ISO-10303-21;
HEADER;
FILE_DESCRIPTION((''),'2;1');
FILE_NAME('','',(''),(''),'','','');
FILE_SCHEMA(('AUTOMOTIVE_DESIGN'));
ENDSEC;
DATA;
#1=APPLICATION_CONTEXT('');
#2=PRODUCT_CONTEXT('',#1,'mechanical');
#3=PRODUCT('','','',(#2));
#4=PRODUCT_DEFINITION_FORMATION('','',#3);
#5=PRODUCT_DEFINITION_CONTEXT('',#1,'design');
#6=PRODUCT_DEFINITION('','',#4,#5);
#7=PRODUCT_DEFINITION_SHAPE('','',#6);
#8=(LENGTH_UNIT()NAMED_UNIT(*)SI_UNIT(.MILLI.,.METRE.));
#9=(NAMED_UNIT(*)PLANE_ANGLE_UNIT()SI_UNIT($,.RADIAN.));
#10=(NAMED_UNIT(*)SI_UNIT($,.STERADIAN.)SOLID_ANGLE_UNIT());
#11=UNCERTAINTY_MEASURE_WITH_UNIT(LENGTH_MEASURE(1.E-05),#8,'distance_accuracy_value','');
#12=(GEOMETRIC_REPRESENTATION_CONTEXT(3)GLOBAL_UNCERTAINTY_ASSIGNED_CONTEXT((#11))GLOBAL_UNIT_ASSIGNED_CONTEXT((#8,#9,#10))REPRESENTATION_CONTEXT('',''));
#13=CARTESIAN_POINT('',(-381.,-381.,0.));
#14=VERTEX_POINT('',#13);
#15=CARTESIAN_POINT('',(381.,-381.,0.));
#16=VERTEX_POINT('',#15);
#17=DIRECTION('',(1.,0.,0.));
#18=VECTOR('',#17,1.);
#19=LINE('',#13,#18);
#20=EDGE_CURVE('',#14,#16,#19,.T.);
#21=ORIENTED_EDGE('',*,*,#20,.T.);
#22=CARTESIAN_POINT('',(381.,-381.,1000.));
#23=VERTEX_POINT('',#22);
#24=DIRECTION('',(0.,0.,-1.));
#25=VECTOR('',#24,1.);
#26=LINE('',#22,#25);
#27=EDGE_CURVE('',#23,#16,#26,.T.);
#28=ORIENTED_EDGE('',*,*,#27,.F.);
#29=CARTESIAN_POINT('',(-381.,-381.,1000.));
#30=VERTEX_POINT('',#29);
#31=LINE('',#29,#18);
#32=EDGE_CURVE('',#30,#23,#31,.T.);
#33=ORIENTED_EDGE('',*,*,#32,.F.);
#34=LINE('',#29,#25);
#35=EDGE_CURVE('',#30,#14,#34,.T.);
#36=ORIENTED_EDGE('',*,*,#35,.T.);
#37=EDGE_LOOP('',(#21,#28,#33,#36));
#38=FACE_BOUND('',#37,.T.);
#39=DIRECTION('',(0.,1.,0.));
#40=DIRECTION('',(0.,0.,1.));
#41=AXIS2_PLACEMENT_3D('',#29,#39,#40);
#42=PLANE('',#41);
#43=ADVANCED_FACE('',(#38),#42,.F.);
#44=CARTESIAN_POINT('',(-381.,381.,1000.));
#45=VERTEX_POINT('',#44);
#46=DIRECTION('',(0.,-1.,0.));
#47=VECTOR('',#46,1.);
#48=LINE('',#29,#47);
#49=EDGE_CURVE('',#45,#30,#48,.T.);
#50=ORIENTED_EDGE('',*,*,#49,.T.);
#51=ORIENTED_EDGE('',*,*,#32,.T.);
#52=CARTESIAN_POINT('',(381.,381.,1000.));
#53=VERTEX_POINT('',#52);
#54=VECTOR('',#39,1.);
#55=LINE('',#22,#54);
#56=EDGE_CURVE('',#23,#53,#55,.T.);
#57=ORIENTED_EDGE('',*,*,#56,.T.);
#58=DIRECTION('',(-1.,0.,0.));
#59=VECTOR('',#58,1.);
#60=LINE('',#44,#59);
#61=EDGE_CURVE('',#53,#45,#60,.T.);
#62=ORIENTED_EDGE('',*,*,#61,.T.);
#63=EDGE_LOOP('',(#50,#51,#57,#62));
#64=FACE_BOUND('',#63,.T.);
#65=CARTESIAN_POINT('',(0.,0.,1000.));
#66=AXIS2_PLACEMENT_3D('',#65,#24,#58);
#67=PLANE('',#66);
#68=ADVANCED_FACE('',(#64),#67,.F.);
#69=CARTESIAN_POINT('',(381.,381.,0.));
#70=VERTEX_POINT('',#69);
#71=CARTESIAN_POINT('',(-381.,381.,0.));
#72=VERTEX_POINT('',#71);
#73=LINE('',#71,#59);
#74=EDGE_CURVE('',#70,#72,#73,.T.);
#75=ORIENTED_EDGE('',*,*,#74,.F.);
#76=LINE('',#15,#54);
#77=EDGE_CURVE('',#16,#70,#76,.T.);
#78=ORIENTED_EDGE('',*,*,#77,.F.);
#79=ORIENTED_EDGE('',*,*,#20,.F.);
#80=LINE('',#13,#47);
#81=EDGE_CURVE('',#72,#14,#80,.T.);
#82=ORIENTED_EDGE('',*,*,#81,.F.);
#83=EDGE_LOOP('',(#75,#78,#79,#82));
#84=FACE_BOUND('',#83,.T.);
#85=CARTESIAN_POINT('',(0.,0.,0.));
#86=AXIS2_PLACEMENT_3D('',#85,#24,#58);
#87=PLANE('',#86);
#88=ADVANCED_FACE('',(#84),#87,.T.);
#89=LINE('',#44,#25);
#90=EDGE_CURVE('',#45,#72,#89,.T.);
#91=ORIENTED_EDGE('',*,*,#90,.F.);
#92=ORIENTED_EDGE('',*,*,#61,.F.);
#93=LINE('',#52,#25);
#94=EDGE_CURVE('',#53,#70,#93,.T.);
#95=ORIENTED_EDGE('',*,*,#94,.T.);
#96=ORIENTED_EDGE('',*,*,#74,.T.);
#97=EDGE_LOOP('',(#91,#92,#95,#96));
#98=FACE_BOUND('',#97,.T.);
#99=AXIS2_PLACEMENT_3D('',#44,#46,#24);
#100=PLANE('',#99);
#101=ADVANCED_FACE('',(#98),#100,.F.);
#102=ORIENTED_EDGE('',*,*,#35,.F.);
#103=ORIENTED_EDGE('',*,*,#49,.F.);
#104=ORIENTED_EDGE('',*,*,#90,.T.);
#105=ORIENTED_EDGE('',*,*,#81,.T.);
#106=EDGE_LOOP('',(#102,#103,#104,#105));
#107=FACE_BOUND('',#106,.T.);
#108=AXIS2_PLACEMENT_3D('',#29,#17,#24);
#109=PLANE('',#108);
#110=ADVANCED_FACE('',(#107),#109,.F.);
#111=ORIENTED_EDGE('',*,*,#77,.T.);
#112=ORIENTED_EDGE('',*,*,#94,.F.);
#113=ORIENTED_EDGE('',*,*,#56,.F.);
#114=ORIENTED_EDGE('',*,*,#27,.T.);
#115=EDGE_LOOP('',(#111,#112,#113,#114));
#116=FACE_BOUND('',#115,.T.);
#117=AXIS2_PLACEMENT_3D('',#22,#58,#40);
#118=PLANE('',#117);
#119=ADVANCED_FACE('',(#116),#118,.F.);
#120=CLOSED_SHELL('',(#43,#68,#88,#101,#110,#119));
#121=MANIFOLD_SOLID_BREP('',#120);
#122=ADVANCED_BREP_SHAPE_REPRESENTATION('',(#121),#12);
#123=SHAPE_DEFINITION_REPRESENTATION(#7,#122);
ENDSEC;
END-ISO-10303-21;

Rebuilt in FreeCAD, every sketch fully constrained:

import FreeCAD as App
import Part
import Sketcher


def add_polygon(sketch, points):
    """Adds a closed chain of lines whose ends are joined by coincident constraints."""
    first, n = sketch.GeometryCount, len(points)
    for a, b in zip(points, points[1:] + points[:1]):
        sketch.addGeometry(Part.LineSegment(App.Vector(*a, 0), App.Vector(*b, 0)), False)
    for i in range(n):
        sketch.addConstraint(Sketcher.Constraint("Coincident", first + i, 2, first + (i + 1) % n, 1))

doc = App.newDocument("Part")
body = doc.addObject("PartDesign::Body", "Body")

# Sketch on XY plane
sketch1 = doc.addObject("Sketcher::SketchObject", "Sketch")
body.addObject(sketch1)
sketch1.AttachmentSupport = (doc.XY_Plane, [""])
sketch1.MapMode = "FlatFace"
add_polygon(sketch1, [(-381, 381), (-381, -381), (381, -381), (381, 381)])  # lines 0-3
sketch1.addConstraint(Sketcher.Constraint("Vertical", 0))
sketch1.addConstraint(Sketcher.Constraint("Horizontal", 1))
sketch1.addConstraint(Sketcher.Constraint("Vertical", 2))
sketch1.addConstraint(Sketcher.Constraint("Horizontal", 3))
sketch1.addConstraint(Sketcher.Constraint("Symmetric", 0, 2, 2, 2, -1, 1))
sketch1.addConstraint(Sketcher.Constraint("Equal", 3, 0))
sketch1.addConstraint(Sketcher.Constraint("DistanceX", 1, 1, 1, 2, 762.0))
pad1 = doc.addObject("PartDesign::Pad", "Pad")
body.addObject(pad1)
pad1.Profile = sketch1
pad1.Length = 1000

doc.recompute()
